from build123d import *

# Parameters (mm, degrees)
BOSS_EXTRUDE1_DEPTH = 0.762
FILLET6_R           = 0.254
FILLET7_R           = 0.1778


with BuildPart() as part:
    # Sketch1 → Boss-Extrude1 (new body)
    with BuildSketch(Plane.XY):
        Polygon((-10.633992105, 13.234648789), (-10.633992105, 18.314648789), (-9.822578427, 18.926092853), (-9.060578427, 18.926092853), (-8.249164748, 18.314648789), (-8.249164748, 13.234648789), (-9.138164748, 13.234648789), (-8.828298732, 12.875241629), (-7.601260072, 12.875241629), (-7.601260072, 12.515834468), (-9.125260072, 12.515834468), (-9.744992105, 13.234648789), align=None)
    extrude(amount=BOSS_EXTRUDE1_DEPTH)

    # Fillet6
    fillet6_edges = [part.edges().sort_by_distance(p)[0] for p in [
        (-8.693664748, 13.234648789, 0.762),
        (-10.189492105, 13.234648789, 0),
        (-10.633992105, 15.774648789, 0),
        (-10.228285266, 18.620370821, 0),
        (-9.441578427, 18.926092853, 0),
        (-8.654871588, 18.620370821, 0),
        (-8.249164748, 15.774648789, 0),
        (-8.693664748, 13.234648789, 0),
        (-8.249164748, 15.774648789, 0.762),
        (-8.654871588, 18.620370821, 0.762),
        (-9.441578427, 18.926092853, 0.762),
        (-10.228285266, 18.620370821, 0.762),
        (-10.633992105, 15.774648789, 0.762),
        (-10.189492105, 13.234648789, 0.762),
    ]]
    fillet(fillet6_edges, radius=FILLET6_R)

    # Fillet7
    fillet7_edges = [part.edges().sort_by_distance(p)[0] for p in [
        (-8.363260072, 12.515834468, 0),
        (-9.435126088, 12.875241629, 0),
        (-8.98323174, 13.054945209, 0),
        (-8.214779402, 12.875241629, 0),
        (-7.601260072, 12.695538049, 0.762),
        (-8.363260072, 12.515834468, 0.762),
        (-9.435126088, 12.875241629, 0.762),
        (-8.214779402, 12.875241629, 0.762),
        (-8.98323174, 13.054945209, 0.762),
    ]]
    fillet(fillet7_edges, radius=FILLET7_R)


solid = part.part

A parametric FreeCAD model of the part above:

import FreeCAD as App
import Part
import Sketcher
Q = App.Units.Quantity


def edges_at(feature, points):
    """Names of the edges that pass closest to the given points."""
    edges = feature.Shape.Edges
    near = lambda p: min(range(len(edges)), key=lambda i: edges[i].distToShape(Part.Vertex(*p))[0])
    return sorted({f"Edge{near(p) + 1}" for p in points})


def add_polygon(sketch, points):
    """Adds a closed chain of lines whose ends are joined by coincident constraints."""
    first, n = sketch.GeometryCount, len(points)
    for a, b in zip(points, points[1:] + points[:1]):
        sketch.addGeometry(Part.LineSegment(App.Vector(*a, 0), App.Vector(*b, 0)), False)
    for i in range(n):
        sketch.addConstraint(Sketcher.Constraint("Coincident", first + i, 2, first + (i + 1) % n, 1))

doc = App.newDocument("Part")
body = doc.addObject("PartDesign::Body", "Body")

sketch1 = body.newObject("Sketcher::SketchObject", "Sketch")
sketch1.AttachmentSupport = (doc.getObject("XY_Plane"), [""])
sketch1.MapMode = "FlatFace"
add_polygon(sketch1, [(-10.63, 18.31), (-10.63, 13.23), (-9.74, 13.23), (-9.13, 12.52), (-7.6, 12.52), (-7.6, 12.88), (-8.83, 12.88), (-9.14, 13.23), (-8.25, 13.23), (-8.25, 18.31), (-9.06, 18.93), (-9.82, 18.93)])
sketch1.addConstraint(Sketcher.Constraint("Vertical", 0))
sketch1.addConstraint(Sketcher.Constraint("Horizontal", 1))
sketch1.addConstraint(Sketcher.Constraint("Horizontal", 3))
sketch1.addConstraint(Sketcher.Constraint("Vertical", 4))
sketch1.addConstraint(Sketcher.Constraint("Horizontal", 5))
sketch1.addConstraint(Sketcher.Constraint("Horizontal", 7))
sketch1.addConstraint(Sketcher.Constraint("Vertical", 8))
sketch1.addConstraint(Sketcher.Constraint("Horizontal", 10))
sketch1.addConstraint(Sketcher.Constraint("Parallel", 2, 6))
sketch1.addConstraint(Sketcher.Constraint("Horizontal", 1, 2, 6, 2))
sketch1.addConstraint(Sketcher.Constraint("Horizontal", 8, 2, 11, 2))
sketch1.addConstraint(Sketcher.Constraint("Equal", 1, 7))
sketch1.addConstraint(Sketcher.Constraint("Equal", 9, 11))
sketch1.addConstraint(Sketcher.Constraint("DistanceY", 0, 2, 0, 1, Q("0.2 in")))
sketch1.addConstraint(Sketcher.Constraint("Angle", 9, Q("143 deg")))
sketch1.addConstraint(Sketcher.Constraint("DistanceX", 3, 1, 3, 2, Q("0.06 in")))
sketch1.addConstraint(Sketcher.Constraint("DistanceX", 10, 2, 10, 1, Q("0.03 in")))
sketch1.addConstraint(Sketcher.Constraint("Distance", 9, Q("0.04 in")))
sketch1.addConstraint(Sketcher.Constraint("DistanceX", 1, 1, 1, 2, Q("0.035 in")))
sketch1.addConstraint(Sketcher.Constraint("DistanceX", 5, 2, 5, 1, Q("1.227039 mm")))
sketch1.addConstraint(Sketcher.Constraint("DistanceX", 5, 2, -1, 1, Q("8.828299 mm")))
sketch1.addConstraint(Sketcher.Constraint("DistanceY", 4, 1, 4, 2, Q("0.359407 mm")))
sketch1.addConstraint(Sketcher.Constraint("DistanceY", -1, 1, 0, 2, Q("13.234649 mm")))
sketch1.addConstraint(Sketcher.Constraint("DistanceY", -1, 1, 4, 2, Q("12.875242 mm")))
pad1 = body.newObject("PartDesign::Pad", "Pad")
pad1.Profile = sketch1
pad1.Length = Q("0.03 in")
doc.recompute()

fillet = body.newObject("PartDesign::Fillet", "Fillet")
fillet.Base = (pad1, edges_at(pad1, [
    (-8.694, 13.235, 0.762),
    (-10.189, 13.235, 0),
    (-10.634, 15.775, 0),
    (-10.228, 18.62, 0),
    (-9.442, 18.926, 0),
    (-8.655, 18.62, 0),
    (-8.249, 15.775, 0),
    (-8.694, 13.235, 0),
    (-8.249, 15.775, 0.762),
    (-8.655, 18.62, 0.762),
    (-9.442, 18.926, 0.762),
    (-10.228, 18.62, 0.762),
    (-10.634, 15.775, 0.762),
    (-10.189, 13.235, 0.762),
]))
fillet.Radius = Q("0.01 in")
doc.recompute()

fillet2 = body.newObject("PartDesign::Fillet", "Fillet001")
fillet2.Base = (fillet, edges_at(fillet, [
    (-8.363, 12.516, 0),
    (-9.545, 13.002, 0),
    (-9.093, 13.182, 0),
    (-8.215, 12.875, 0),
    (-7.601, 12.696, 0.762),
    (-8.363, 12.516, 0.762),
    (-9.545, 13.002, 0.762),
    (-8.215, 12.875, 0.762),
    (-9.093, 13.182, 0.762),
]))
fillet2.Radius = Q("0.007 in")

doc.recompute()
